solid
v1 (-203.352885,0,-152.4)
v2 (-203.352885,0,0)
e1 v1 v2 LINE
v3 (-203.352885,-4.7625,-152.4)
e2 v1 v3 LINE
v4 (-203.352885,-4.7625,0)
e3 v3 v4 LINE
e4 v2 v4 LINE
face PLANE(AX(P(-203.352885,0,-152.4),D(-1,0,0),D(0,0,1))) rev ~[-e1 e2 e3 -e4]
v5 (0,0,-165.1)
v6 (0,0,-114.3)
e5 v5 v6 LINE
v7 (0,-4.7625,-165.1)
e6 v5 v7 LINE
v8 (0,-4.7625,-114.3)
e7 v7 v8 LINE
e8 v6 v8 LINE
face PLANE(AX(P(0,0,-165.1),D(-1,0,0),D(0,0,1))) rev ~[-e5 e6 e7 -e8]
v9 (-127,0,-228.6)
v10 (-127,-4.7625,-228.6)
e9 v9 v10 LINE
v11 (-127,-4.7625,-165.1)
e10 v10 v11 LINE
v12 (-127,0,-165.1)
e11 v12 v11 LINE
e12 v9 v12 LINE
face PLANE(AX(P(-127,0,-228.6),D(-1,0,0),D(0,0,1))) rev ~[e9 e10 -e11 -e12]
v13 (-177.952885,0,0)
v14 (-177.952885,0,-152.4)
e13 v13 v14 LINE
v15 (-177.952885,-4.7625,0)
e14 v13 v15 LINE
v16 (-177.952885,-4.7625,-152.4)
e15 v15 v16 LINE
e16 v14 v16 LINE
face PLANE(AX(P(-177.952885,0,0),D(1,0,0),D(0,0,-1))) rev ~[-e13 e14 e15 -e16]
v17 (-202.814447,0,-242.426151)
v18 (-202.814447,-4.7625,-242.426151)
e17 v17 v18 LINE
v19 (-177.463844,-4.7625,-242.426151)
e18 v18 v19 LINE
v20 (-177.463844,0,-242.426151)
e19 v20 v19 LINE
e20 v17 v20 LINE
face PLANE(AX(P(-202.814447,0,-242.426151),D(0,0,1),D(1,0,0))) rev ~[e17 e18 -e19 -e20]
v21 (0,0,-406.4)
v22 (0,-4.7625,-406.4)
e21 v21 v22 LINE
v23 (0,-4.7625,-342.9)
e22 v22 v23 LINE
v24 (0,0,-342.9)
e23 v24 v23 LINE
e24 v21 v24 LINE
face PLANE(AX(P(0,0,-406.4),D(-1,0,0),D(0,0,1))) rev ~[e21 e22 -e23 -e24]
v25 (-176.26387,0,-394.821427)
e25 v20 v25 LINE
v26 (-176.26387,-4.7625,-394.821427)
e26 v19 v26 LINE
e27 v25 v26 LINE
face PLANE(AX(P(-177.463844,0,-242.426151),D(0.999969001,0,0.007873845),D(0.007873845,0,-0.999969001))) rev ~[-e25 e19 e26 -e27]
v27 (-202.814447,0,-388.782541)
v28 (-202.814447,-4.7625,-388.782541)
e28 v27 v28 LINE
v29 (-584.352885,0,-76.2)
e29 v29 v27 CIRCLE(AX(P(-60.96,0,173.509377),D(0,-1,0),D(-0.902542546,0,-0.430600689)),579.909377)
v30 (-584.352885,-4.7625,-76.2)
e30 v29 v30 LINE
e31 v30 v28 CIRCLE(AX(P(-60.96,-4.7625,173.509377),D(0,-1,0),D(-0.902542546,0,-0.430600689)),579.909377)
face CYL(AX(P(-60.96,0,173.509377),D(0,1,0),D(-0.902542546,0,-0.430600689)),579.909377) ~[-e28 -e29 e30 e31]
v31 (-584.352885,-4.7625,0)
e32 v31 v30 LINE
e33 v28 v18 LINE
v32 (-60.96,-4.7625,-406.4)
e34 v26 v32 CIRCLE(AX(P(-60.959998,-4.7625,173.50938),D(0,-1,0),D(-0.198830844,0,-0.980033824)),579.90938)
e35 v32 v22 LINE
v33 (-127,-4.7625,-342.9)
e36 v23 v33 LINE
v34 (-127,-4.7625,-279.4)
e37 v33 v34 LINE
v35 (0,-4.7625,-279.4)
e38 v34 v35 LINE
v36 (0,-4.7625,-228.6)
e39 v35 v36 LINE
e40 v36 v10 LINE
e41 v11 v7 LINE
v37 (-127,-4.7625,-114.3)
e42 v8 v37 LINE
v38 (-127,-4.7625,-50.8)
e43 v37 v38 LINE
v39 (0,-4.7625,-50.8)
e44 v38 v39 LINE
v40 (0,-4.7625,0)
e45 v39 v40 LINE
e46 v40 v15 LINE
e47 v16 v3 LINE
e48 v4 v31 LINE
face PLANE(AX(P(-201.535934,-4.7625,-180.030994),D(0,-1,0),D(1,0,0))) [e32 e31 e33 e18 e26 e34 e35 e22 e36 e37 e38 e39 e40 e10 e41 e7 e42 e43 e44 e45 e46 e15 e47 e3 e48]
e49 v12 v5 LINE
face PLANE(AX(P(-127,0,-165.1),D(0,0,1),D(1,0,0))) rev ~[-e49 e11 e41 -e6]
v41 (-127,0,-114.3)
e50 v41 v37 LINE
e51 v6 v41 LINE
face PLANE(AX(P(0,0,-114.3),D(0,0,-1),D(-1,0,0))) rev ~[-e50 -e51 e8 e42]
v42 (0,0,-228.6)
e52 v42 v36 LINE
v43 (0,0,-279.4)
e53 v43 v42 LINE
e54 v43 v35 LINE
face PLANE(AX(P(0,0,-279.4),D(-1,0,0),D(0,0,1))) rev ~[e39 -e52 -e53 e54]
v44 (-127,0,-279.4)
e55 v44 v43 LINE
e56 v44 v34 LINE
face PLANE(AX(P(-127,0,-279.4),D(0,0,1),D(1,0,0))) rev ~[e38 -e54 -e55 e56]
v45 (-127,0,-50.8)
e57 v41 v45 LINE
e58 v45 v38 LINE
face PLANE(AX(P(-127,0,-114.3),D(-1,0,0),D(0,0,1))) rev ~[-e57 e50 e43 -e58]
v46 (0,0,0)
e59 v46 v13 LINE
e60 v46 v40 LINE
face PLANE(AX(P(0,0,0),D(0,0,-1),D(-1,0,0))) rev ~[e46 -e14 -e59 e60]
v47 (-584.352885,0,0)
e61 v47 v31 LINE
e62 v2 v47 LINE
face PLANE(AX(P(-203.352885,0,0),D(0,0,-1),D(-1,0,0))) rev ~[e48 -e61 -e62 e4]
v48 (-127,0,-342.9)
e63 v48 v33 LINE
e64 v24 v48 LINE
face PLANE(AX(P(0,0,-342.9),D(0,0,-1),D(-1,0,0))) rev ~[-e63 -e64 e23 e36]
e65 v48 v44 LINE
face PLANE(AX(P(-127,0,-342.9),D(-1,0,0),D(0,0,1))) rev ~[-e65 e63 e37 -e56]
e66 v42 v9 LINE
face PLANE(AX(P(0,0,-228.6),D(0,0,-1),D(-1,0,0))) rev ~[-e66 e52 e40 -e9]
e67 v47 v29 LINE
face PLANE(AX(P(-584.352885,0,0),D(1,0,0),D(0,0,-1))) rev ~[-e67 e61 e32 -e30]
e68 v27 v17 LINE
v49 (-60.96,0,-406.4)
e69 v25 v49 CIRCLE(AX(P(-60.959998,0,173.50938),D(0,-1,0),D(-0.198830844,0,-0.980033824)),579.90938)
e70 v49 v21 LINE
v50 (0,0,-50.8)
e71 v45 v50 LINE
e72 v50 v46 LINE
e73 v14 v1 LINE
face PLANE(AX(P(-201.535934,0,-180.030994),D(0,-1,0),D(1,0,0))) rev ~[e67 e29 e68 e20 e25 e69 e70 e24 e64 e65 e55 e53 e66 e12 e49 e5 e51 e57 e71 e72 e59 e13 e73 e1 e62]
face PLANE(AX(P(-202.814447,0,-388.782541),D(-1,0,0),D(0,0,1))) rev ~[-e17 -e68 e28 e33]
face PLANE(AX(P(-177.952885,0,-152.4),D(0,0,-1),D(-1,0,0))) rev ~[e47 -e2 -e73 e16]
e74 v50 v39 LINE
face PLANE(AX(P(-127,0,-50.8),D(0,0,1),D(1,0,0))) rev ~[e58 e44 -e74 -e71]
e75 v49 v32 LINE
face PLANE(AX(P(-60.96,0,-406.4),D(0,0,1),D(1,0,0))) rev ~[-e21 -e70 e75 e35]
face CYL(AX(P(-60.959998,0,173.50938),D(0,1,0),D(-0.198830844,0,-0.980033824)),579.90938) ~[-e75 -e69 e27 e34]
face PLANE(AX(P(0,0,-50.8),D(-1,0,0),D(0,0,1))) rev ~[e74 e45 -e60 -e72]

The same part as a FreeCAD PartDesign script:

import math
import FreeCAD as App
import Part
import Sketcher
Q = App.Units.Quantity

doc = App.newDocument("Part")
body = doc.addObject("PartDesign::Body", "Body")

# Sketch on XZ plane
sketch1 = doc.addObject("Sketcher::SketchObject", "Sketch")
body.addObject(sketch1)
sketch1.AttachmentSupport = (doc.XZ_Plane, [""])
sketch1.MapMode = "FlatFace"
sketch1.addGeometry([
    Part.LineSegment(App.Vector(-203, 0, 0), App.Vector(-584, 0, 0)),  # 0
    Part.LineSegment(App.Vector(-584, 0, 0), App.Vector(-584, -76, 0)),  # 1
    Part.ArcOfCircle(Part.Circle(App.Vector(-61, 174, 0), App.Vector(0, 0, 1), 580), math.radians(-154), math.radians(-104)),  # 2
    Part.LineSegment(App.Vector(-203, -389, 0), App.Vector(-203, -242, 0)),  # 3
    Part.LineSegment(App.Vector(-203, -242, 0), App.Vector(-177, -242, 0)),  # 4
    Part.LineSegment(App.Vector(-177, -242, 0), App.Vector(-176, -395, 0)),  # 5
    Part.ArcOfCircle(Part.Circle(App.Vector(-61, 174, 0), App.Vector(0, 0, 1), 580), math.radians(-101.47), math.radians(-90)),  # 6
    Part.LineSegment(App.Vector(-61, -406, 0), App.Vector(0, -406, 0)),  # 7
    Part.LineSegment(App.Vector(0, -406, 0), App.Vector(0, -343, 0)),  # 8
    Part.LineSegment(App.Vector(0, -343, 0), App.Vector(-127, -343, 0)),  # 9
    Part.LineSegment(App.Vector(-127, -343, 0), App.Vector(-127, -279, 0)),  # 10
    Part.LineSegment(App.Vector(-127, -279, 0), App.Vector(0, -279, 0)),  # 11
    Part.LineSegment(App.Vector(0, -279, 0), App.Vector(0, -229, 0)),  # 12
    Part.LineSegment(App.Vector(0, -229, 0), App.Vector(-127, -229, 0)),  # 13
    Part.LineSegment(App.Vector(-127, -229, 0), App.Vector(-127, -165, 0)),  # 14
    Part.LineSegment(App.Vector(-127, -165, 0), App.Vector(0, -165, 0)),  # 15
    Part.LineSegment(App.Vector(0, -165, 0), App.Vector(0, -114, 0)),  # 16
    Part.LineSegment(App.Vector(0, -114, 0), App.Vector(-127, -114, 0)),  # 17
    Part.LineSegment(App.Vector(-127, -114, 0), App.Vector(-127, -51, 0)),  # 18
    Part.LineSegment(App.Vector(-127, -51, 0), App.Vector(0, -51, 0)),  # 19
    Part.LineSegment(App.Vector(0, -51, 0), App.Vector(0, 0, 0)),  # 20
    Part.LineSegment(App.Vector(0, 0, 0), App.Vector(-178, 0, 0)),  # 21
    Part.LineSegment(App.Vector(-178, 0, 0), App.Vector(-178, -152, 0)),  # 22
    Part.LineSegment(App.Vector(-178, -152, 0), App.Vector(-203, -152, 0)),  # 23
    Part.LineSegment(App.Vector(-203, -152, 0), App.Vector(-203, 0, 0)),  # 24
], False)
sketch1.addConstraint([
    Sketcher.Constraint("Coincident", 0, 2, 1, 1),
    Sketcher.Constraint("Coincident", 1, 2, 2, 1),
    Sketcher.Constraint("Coincident", 2, 2, 3, 1),
    Sketcher.Constraint("Coincident", 3, 2, 4, 1),
    Sketcher.Constraint("Coincident", 4, 2, 5, 1),
    Sketcher.Constraint("Coincident", 5, 2, 6, 1),
    Sketcher.Constraint("Tangent", 6, 2, 7, 1),
    Sketcher.Constraint("Coincident", 7, 2, 8, 1),
    Sketcher.Constraint("Coincident", 8, 2, 9, 1),
    Sketcher.Constraint("Coincident", 9, 2, 10, 1),
    Sketcher.Constraint("Coincident", 10, 2, 11, 1),
    Sketcher.Constraint("Coincident", 11, 2, 12, 1),
    Sketcher.Constraint("Coincident", 12, 2, 13, 1),
    Sketcher.Constraint("Coincident", 13, 2, 14, 1),
    Sketcher.Constraint("Coincident", 14, 2, 15, 1),
    Sketcher.Constraint("Coincident", 15, 2, 16, 1),
    Sketcher.Constraint("Coincident", 16, 2, 17, 1),
    Sketcher.Constraint("Coincident", 17, 2, 18, 1),
    Sketcher.Constraint("Coincident", 18, 2, 19, 1),
    Sketcher.Constraint("Coincident", 19, 2, 20, 1),
    Sketcher.Constraint("Coincident", 20, 2, 21, 1),
    Sketcher.Constraint("Coincident", 21, 2, 22, 1),
    Sketcher.Constraint("Coincident", 22, 2, 23, 1),
    Sketcher.Constraint("Coincident", 23, 2, 24, 1),
    Sketcher.Constraint("Coincident", 24, 2, 0, 1),
    Sketcher.Constraint("Horizontal", 0),
    Sketcher.Constraint("Vertical", 1),
    Sketcher.Constraint("Vertical", 3),
    Sketcher.Constraint("Horizontal", 4),
    Sketcher.Constraint("Horizontal", 7),
    Sketcher.Constraint("Vertical", 8),
    Sketcher.Constraint("Horizontal", 9),
    Sketcher.Constraint("Vertical", 10),
    Sketcher.Constraint("Horizontal", 11),
    Sketcher.Constraint("Vertical", 12),
    Sketcher.Constraint("Horizontal", 13),
    Sketcher.Constraint("Vertical", 14),
    Sketcher.Constraint("Horizontal", 15),
    Sketcher.Constraint("Vertical", 16),
    Sketcher.Constraint("Horizontal", 17),
    Sketcher.Constraint("Vertical", 18),
    Sketcher.Constraint("Horizontal", 19),
    Sketcher.Constraint("Vertical", 20),
    Sketcher.Constraint("Horizontal", 21),
    Sketcher.Constraint("Vertical", 22),
    Sketcher.Constraint("Horizontal", 23),
    Sketcher.Constraint("Vertical", 24),
    Sketcher.Constraint("Coincident", 20, 2, -1, 1),
    Sketcher.Constraint("Coincident", 6, 3, 2, 3),
    Sketcher.Constraint("PointOnObject", 0, 2, -1),
    Sketcher.Constraint("PointOnObject", 7, 2, -2),
    Sketcher.Constraint("PointOnObject", 11, 2, -2),
    Sketcher.Constraint("PointOnObject", 15, 2, -2),
    Sketcher.Constraint("Vertical", 10, 2, 13, 2),
    Sketcher.Constraint("Vertical", 14, 2, 17, 2),
    Sketcher.Constraint("Equal", 8, 10),
    Sketcher.Constraint("Equal", 10, 14),
    Sketcher.Constraint("Equal", 12, 16),
    Sketcher.Constraint("Equal", 14, 18),
    Sketcher.Constraint("Equal", 16, 20),
    Sketcher.Constraint("DistanceX", 0, 2, 0, 1, Q("15 in")),
    Sketcher.Constraint("DistanceX", 9, 2, 9, 1, Q("5 in")),
    Sketcher.Constraint("DistanceX", 23, 2, 23, 1, Q("1 in")),
    Sketcher.Constraint("DistanceY", 1, 2, 1, 1, Q("3 in")),
    Sketcher.Constraint("DistanceY", 12, 1, 12, 2, Q("2 in")),
    Sketcher.Constraint("DistanceY", 22, 2, 22, 1, Q("6 in")),
    Sketcher.Constraint("Distance", 5, Q("6 in")),
    Sketcher.Constraint("DistanceX", 7, 1, 7, 2, Q("2.4 in")),
    Sketcher.Constraint("DistanceY", 8, 1, 8, 2, Q("2.5 in")),
    Sketcher.Constraint("Radius", 6, 579.90938),
    Sketcher.Constraint("Radius", 2, 579.909377),
    Sketcher.Constraint("DistanceY", 3, 1, 3, 2, 146.35639),
    Sketcher.Constraint("DistanceX", 4, 1, 4, 2, 25.350603),
    Sketcher.Constraint("DistanceY", 3, 2, -1, 1, 242.426151),
])
pad1 = doc.addObject("PartDesign::Pad", "Pad")
body.addObject(pad1)
pad1.Profile = sketch1
pad1.Length = Q("0.1875 in")

doc.recompute()
